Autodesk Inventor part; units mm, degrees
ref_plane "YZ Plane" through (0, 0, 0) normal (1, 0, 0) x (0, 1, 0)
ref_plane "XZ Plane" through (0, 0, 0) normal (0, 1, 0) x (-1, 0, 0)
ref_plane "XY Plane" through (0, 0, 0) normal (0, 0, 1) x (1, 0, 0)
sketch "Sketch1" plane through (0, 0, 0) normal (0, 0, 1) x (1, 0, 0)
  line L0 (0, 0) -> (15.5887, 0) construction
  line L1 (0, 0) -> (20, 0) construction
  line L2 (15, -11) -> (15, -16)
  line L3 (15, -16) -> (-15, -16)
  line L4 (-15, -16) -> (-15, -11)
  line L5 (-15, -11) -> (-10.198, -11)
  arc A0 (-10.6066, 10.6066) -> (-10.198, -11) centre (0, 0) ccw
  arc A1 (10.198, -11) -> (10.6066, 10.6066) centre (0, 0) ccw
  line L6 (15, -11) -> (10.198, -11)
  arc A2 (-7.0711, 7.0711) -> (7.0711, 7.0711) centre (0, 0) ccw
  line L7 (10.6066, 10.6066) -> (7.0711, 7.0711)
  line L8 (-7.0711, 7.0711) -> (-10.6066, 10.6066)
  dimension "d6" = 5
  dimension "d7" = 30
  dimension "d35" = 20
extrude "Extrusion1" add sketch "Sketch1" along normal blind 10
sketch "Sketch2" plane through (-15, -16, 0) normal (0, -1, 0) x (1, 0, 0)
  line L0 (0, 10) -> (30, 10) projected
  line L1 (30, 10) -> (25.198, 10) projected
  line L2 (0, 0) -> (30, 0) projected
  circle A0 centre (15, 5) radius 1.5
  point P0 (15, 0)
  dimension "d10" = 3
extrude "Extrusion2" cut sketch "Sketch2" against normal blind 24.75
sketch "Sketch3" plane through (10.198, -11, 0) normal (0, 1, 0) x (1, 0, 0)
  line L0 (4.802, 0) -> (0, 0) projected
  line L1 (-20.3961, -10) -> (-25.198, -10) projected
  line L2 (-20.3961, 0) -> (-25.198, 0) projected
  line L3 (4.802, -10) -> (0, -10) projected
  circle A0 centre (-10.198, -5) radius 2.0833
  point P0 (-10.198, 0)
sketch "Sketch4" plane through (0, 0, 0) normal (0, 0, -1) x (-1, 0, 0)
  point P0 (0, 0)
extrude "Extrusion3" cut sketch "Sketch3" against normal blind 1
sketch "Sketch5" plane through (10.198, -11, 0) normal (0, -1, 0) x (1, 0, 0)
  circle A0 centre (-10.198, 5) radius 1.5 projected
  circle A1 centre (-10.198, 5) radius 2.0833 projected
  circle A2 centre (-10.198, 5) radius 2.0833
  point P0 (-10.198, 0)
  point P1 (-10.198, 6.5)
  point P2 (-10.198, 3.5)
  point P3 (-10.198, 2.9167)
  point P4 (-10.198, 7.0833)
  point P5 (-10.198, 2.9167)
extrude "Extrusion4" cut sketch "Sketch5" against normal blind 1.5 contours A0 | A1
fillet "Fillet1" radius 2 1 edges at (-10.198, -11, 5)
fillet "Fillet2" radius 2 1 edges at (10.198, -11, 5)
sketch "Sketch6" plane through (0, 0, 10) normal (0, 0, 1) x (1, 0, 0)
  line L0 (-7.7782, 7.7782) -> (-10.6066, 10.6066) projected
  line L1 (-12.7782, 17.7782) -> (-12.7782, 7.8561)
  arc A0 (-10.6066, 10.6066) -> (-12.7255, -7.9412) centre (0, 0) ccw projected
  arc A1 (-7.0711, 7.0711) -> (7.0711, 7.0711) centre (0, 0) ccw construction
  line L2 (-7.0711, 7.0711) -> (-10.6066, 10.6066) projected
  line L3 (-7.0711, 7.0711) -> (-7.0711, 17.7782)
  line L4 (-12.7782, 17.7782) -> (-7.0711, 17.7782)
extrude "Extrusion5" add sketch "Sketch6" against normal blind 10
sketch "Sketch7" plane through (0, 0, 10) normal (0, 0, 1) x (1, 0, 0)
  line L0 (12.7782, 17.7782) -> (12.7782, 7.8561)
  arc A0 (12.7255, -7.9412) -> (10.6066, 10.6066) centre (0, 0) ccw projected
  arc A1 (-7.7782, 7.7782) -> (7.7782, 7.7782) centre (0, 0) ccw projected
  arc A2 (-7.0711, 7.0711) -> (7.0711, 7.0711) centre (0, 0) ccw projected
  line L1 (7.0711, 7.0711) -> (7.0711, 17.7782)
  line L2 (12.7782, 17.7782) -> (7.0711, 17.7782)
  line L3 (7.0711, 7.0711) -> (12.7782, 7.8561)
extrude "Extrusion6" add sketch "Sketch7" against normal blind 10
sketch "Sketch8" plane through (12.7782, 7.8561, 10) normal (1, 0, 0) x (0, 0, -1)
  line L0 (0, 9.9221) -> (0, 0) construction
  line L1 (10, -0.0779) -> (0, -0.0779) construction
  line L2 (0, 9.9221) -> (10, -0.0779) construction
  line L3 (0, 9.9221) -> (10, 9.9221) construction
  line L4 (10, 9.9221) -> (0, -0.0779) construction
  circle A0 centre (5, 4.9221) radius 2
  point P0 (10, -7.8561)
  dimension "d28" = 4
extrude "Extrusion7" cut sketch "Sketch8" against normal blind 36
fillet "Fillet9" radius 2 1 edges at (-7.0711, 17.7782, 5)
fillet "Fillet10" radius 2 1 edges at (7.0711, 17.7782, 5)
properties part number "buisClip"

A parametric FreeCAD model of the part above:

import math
import FreeCAD as App
import Part
import Sketcher
from FreeCAD import Vector
Q = App.Units.Quantity


def edges_at(feature, points):
    """Names of the edges that pass closest to the given points."""
    edges = feature.Shape.Edges
    near = lambda p: min(range(len(edges)), key=lambda i: edges[i].distToShape(Part.Vertex(*p))[0])
    return sorted({f"Edge{near(p) + 1}" for p in points})

doc = App.newDocument("Part")
params = doc.addObject("Spreadsheet::Sheet", "Params")
for row, (alias, value) in enumerate([
    ("sketch1_radius", "15 mm"),
    ("sketch1_radius2", "10 mm"),
    ("sketch1_width", "30 mm"),
    ("sketch1_height", "5 mm"),
    ("pad1_length", "10 mm"),
    ("sketch2_diameter", "3 mm"),
    ("pocket1_length", "24.75 mm"),
    ("pocket2_length", "1 mm"),
    ("pocket3_length", "1.5 mm"),
    ("fillet_radius", "2 mm"),
    ("fillet2_radius", "2 mm"),
    ("sketch5_radius", "15 mm"),
    ("sketch5_length", "5 mm"),
    ("pad2_length", "10 mm"),
    ("pad3_length", "10 mm"),
    ("sketch7_diameter", "4 mm"),
    ("pocket4_length", "36 mm"),
    ("fillet3_radius", "2 mm"),
    ("fillet4_radius", "2 mm"),
], start=1):
    params.set(f"A{row}", alias)
    params.set(f"B{row}", "=" + value)
    params.setAlias(f"B{row}", alias)

body = doc.addObject("PartDesign::Body", "Body")

# Sketch on XY plane
sketch1 = body.newObject("Sketcher::SketchObject", "Sketch")
sketch1.AttachmentSupport = (doc.getObject("XY_Plane"), [""])
sketch1.MapMode = "FlatFace"
sketch1.addGeometry(Part.LineSegment(Vector(15, -16, 0), Vector(15, -11, 0)), False)
sketch1.addGeometry(Part.LineSegment(Vector(15, -11, 0), Vector(10.2, -11, 0)), False)
sketch1.addGeometry(Part.ArcOfCircle(Part.Circle(Vector(0, 0, 0), Vector(0, 0, 1), 15), math.radians(-47), math.radians(45)), False)
sketch1.addGeometry(Part.LineSegment(Vector(10.6, 10.6, 0), Vector(7.1, 7.1, 0)), False)
sketch1.addGeometry(Part.ArcOfCircle(Part.Circle(Vector(0, 0, 0), Vector(0, 0, 1), 10), math.radians(135), math.radians(405)), False)
sketch1.addGeometry(Part.LineSegment(Vector(-7.1, 7.1, 0), Vector(-10.6, 10.6, 0)), False)
sketch1.addGeometry(Part.ArcOfCircle(Part.Circle(Vector(0, 0, 0), Vector(0, 0, 1), 15), math.radians(135), math.radians(227)), False)
sketch1.addGeometry(Part.LineSegment(Vector(-10.2, -11, 0), Vector(-15, -11, 0)), False)
sketch1.addGeometry(Part.LineSegment(Vector(-15, -11, 0), Vector(-15, -16, 0)), False)
sketch1.addGeometry(Part.LineSegment(Vector(-15, -16, 0), Vector(15, -16, 0)), False)
sketch1.addConstraint(Sketcher.Constraint("Coincident", 0, 2, 1, 1))
sketch1.addConstraint(Sketcher.Constraint("Coincident", 1, 2, 2, 1))
sketch1.addConstraint(Sketcher.Constraint("Coincident", 2, 2, 3, 1))
sketch1.addConstraint(Sketcher.Constraint("Coincident", 3, 2, 4, 2))
sketch1.addConstraint(Sketcher.Constraint("Coincident", 4, 1, 5, 1))
sketch1.addConstraint(Sketcher.Constraint("Coincident", 5, 2, 6, 1))
sketch1.addConstraint(Sketcher.Constraint("Coincident", 6, 2, 7, 1))
sketch1.addConstraint(Sketcher.Constraint("Coincident", 7, 2, 8, 1))
sketch1.addConstraint(Sketcher.Constraint("Coincident", 8, 2, 9, 1))
sketch1.addConstraint(Sketcher.Constraint("Coincident", 9, 2, 0, 1))
sketch1.addConstraint(Sketcher.Constraint("Vertical", 0))
sketch1.addConstraint(Sketcher.Constraint("Horizontal", 1))
sketch1.addConstraint(Sketcher.Constraint("Horizontal", 7))
sketch1.addConstraint(Sketcher.Constraint("Vertical", 8))
sketch1.addConstraint(Sketcher.Constraint("Horizontal", 9))
sketch1.addConstraint(Sketcher.Constraint("Coincident", 2, 3, -1, 1))
sketch1.addConstraint(Sketcher.Constraint("Coincident", 4, 3, -1, 1))
sketch1.addConstraint(Sketcher.Constraint("Coincident", 6, 3, -1, 1))
sketch1.addConstraint(Sketcher.Constraint("Equal", 2, 6))
sketch1.addConstraint(Sketcher.Constraint("Symmetric", 0, 2, 7, 2, -2))
sketch1.addConstraint(Sketcher.Constraint("Perpendicular", 3, 5))
sketch1.addConstraint(Sketcher.Constraint("Horizontal", 3, 2, 4, 1))
sketch1.addConstraint(Sketcher.Constraint("Horizontal", 2, 2, 5, 2))
sketch1.addConstraint(Sketcher.Constraint("Radius", 2, Q("15 mm")))
sketch1.addConstraint(Sketcher.Constraint("Radius", 4, Q("10 mm")))
sketch1.addConstraint(Sketcher.Constraint("DistanceX", 9, 1, 9, 2, Q("30 mm")))
sketch1.addConstraint(Sketcher.Constraint("DistanceY", 0, 1, 0, 2, Q("5 mm")))
sketch1.addConstraint(Sketcher.Constraint("DistanceY", 0, 2, -1, 1, Q("11 mm")))
sketch1.addConstraint(Sketcher.Constraint("DistanceX", -1, 1, 3, 2, Q("7.071 mm")))
sketch1.setExpression("Constraints[23]", "Params.sketch1_radius")
sketch1.setExpression("Constraints[24]", "Params.sketch1_radius2")
sketch1.setExpression("Constraints[25]", "Params.sketch1_width")
sketch1.setExpression("Constraints[26]", "Params.sketch1_height")
pad1 = body.newObject("PartDesign::Pad", "Pad")
pad1.Profile = sketch1
pad1.setExpression("Length", "Params.pad1_length")

# Sketch on XZ plane
sketch2 = body.newObject("Sketcher::SketchObject", "Sketch001")
sketch2.AttachmentSupport = (doc.getObject("XZ_Plane"), [""])
sketch2.MapMode = "FlatFace"
sketch2.AttachmentOffset = App.Placement(Vector(0, 0, 16), App.Rotation())
sketch2.addGeometry(Part.Circle(Vector(0, 5, 0), Vector(0, 0, 1), 1.5), False)
sketch2.addConstraint(Sketcher.Constraint("PointOnObject", 0, 3, -2))
sketch2.addConstraint(Sketcher.Constraint("Diameter", 0, Q("3 mm")))
sketch2.addConstraint(Sketcher.Constraint("DistanceY", -1, 1, 0, 3, Q("5 mm")))
sketch2.setExpression("Constraints[1]", "Params.sketch2_diameter")
pocket1 = body.newObject("PartDesign::Pocket", "Pocket")
pocket1.Profile = sketch2
pocket1.setExpression("Length", "Params.pocket1_length")

# Sketch on XZ plane
sketch3 = body.newObject("Sketcher::SketchObject", "Sketch002")
sketch3.AttachmentSupport = (doc.getObject("XZ_Plane"), [""])
sketch3.MapMode = "FlatFace"
sketch3.AttachmentOffset = App.Placement(Vector(0, 0, 11), App.Rotation())
sketch3.addGeometry(Part.Circle(Vector(0, 5, 0), Vector(0, 0, 1), 2.1), False)
sketch3.addConstraint(Sketcher.Constraint("PointOnObject", 0, 3, -2))
sketch3.addConstraint(Sketcher.Constraint("DistanceY", -1, 1, 0, 3, Q("5 mm")))
sketch3.addConstraint(Sketcher.Constraint("Diameter", 0, Q("4.1666 mm")))
pocket2 = body.newObject("PartDesign::Pocket", "Pocket001")
pocket2.Profile = sketch3
pocket2.setExpression("Length", "Params.pocket2_length")
pocket2.Reversed = True

# Sketch on XZ plane
sketch4 = body.newObject("Sketcher::SketchObject", "Sketch003")
sketch4.AttachmentSupport = (doc.getObject("XZ_Plane"), [""])
sketch4.MapMode = "FlatFace"
sketch4.AttachmentOffset = App.Placement(Vector(0, 0, 11), App.Rotation())
sketch4.addGeometry(Part.Circle(Vector(0, 5, 0), Vector(0, 0, 1), 2.1), False)
sketch4.addConstraint(Sketcher.Constraint("PointOnObject", 0, 3, -2))
sketch4.addConstraint(Sketcher.Constraint("DistanceY", -1, 1, 0, 3, Q("5 mm")))
sketch4.addConstraint(Sketcher.Constraint("Diameter", 0, Q("4.1666 mm")))
pocket3 = body.newObject("PartDesign::Pocket", "Pocket002")
pocket3.Profile = sketch4
pocket3.setExpression("Length", "Params.pocket3_length")
doc.recompute()

fillet = body.newObject("PartDesign::Fillet", "Fillet")
fillet.Base = (pocket3, edges_at(pocket3, [(-10.198, -11, 5)]))
fillet.setExpression("Radius", "Params.fillet_radius")
doc.recompute()

fillet2 = body.newObject("PartDesign::Fillet", "Fillet001")
fillet2.Base = (fillet, edges_at(fillet, [(10.198, -11, 5)]))
fillet2.setExpression("Radius", "Params.fillet2_radius")

# Sketch on XY plane
sketch5 = body.newObject("Sketcher::SketchObject", "Sketch004")
sketch5.AttachmentSupport = (doc.getObject("XY_Plane"), [""])
sketch5.MapMode = "FlatFace"
sketch5.AttachmentOffset = App.Placement(Vector(0, 0, 10), App.Rotation())
sketch5.addGeometry(Part.LineSegment(Vector(-10.6, 10.6, 0), Vector(-7.1, 7.1, 0)), False)
sketch5.addGeometry(Part.LineSegment(Vector(-7.1, 7.1, 0), Vector(-7.1, 17.8, 0)), False)
sketch5.addGeometry(Part.LineSegment(Vector(-7.1, 17.8, 0), Vector(-12.8, 17.8, 0)), False)
sketch5.addGeometry(Part.LineSegment(Vector(-12.8, 17.8, 0), Vector(-12.8, 7.9, 0)), False)
sketch5.addGeometry(Part.ArcOfCircle(Part.Circle(Vector(0, 0, 0), Vector(0, 0, 1), 15), math.radians(135), math.radians(148.42)), False)
sketch5.addConstraint(Sketcher.Constraint("Coincident", 0, 2, 1, 1))
sketch5.addConstraint(Sketcher.Constraint("Coincident", 1, 2, 2, 1))
sketch5.addConstraint(Sketcher.Constraint("Coincident", 2, 2, 3, 1))
sketch5.addConstraint(Sketcher.Constraint("Coincident", 3, 2, 4, 2))
sketch5.addConstraint(Sketcher.Constraint("Coincident", 4, 1, 0, 1))
sketch5.addConstraint(Sketcher.Constraint("Vertical", 1))
sketch5.addConstraint(Sketcher.Constraint("Horizontal", 2))
sketch5.addConstraint(Sketcher.Constraint("Vertical", 3))
sketch5.addConstraint(Sketcher.Constraint("Coincident", 4, 3, -1, 1))
sketch5.addConstraint(Sketcher.Constraint("Radius", 4, Q("15 mm")))
sketch5.addConstraint(Sketcher.Constraint("Angle", 0, Q("-45 deg")))
sketch5.addConstraint(Sketcher.Constraint("Distance", 0, Q("5 mm")))
sketch5.addConstraint(Sketcher.Constraint("DistanceX", 2, 2, 2, 1, Q("5.707 mm")))
sketch5.addConstraint(Sketcher.Constraint("DistanceY", 1, 1, 1, 2, Q("10.707 mm")))
sketch5.addConstraint(Sketcher.Constraint("DistanceY", 3, 2, 3, 1, Q("9.922 mm")))
sketch5.setExpression("Constraints[9]", "Params.sketch5_radius")
sketch5.setExpression("Constraints[11]", "Params.sketch5_length")
pad2 = body.newObject("PartDesign::Pad", "Pad001")
pad2.Profile = sketch5
pad2.setExpression("Length", "Params.pad2_length")
pad2.Reversed = True

# Sketch on XY plane
sketch6 = body.newObject("Sketcher::SketchObject", "Sketch005")
sketch6.AttachmentSupport = (doc.getObject("XY_Plane"), [""])
sketch6.MapMode = "FlatFace"
sketch6.AttachmentOffset = App.Placement(Vector(0, 0, 10), App.Rotation())
sketch6.addGeometry(Part.LineSegment(Vector(13, 8, 0), Vector(13, 18, 0)), False)
sketch6.addGeometry(Part.LineSegment(Vector(13, 18, 0), Vector(7, 18, 0)), False)
sketch6.addGeometry(Part.LineSegment(Vector(7, 18, 0), Vector(7, 7, 0)), False)
sketch6.addGeometry(Part.LineSegment(Vector(7, 7, 0), Vector(13, 8, 0)), False)
sketch6.addConstraint(Sketcher.Constraint("Coincident", 0, 2, 1, 1))
sketch6.addConstraint(Sketcher.Constraint("Coincident", 1, 2, 2, 1))
sketch6.addConstraint(Sketcher.Constraint("Coincident", 2, 2, 3, 1))
sketch6.addConstraint(Sketcher.Constraint("Coincident", 3, 2, 0, 1))
sketch6.addConstraint(Sketcher.Constraint("Vertical", 0))
sketch6.addConstraint(Sketcher.Constraint("Horizontal", 1))
sketch6.addConstraint(Sketcher.Constraint("Vertical", 2))
sketch6.addConstraint(Sketcher.Constraint("DistanceX", 1, 2, 1, 1, Q("5.707 mm")))
sketch6.addConstraint(Sketcher.Constraint("DistanceY", 0, 1, 0, 2, Q("9.922 mm")))
sketch6.addConstraint(Sketcher.Constraint("DistanceY", 2, 2, 2, 1, Q("10.707 mm")))
sketch6.addConstraint(Sketcher.Constraint("DistanceX", -1, 1, 1, 2, Q("7.071 mm")))
sketch6.addConstraint(Sketcher.Constraint("DistanceY", -1, 1, 2, 2, Q("7.071 mm")))
pad3 = body.newObject("PartDesign::Pad", "Pad002")
pad3.Profile = sketch6
pad3.setExpression("Length", "Params.pad3_length")
pad3.Reversed = True

# Sketch on YZ plane
sketch7 = body.newObject("Sketcher::SketchObject", "Sketch006")
sketch7.AttachmentSupport = (doc.getObject("YZ_Plane"), [""])
sketch7.MapMode = "FlatFace"
sketch7.AttachmentOffset = App.Placement(Vector(0, 0, 12.7782), App.Rotation())
sketch7.addGeometry(Part.Circle(Vector(12.8, 5, 0), Vector(0, 0, 1), 2), False)
sketch7.addConstraint(Sketcher.Constraint("Diameter", 0, Q("4 mm")))
sketch7.addConstraint(Sketcher.Constraint("DistanceY", -1, 1, 0, 3, Q("5 mm")))
sketch7.addConstraint(Sketcher.Constraint("DistanceX", -1, 1, 0, 3, Q("12.7782 mm")))
sketch7.setExpression("Constraints[0]", "Params.sketch7_diameter")
pocket4 = body.newObject("PartDesign::Pocket", "Pocket003")
pocket4.Profile = sketch7
pocket4.setExpression("Length", "Params.pocket4_length")
doc.recompute()

fillet3 = body.newObject("PartDesign::Fillet", "Fillet002")
fillet3.Base = (pocket4, edges_at(pocket4, [(-7.071, 17.778, 5)]))
fillet3.setExpression("Radius", "Params.fillet3_radius")
doc.recompute()

fillet4 = body.newObject("PartDesign::Fillet", "Fillet003")
fillet4.Base = (fillet3, edges_at(fillet3, [(7.071, 17.778, 5)]))
fillet4.setExpression("Radius", "Params.fillet4_radius")

doc.recompute()
